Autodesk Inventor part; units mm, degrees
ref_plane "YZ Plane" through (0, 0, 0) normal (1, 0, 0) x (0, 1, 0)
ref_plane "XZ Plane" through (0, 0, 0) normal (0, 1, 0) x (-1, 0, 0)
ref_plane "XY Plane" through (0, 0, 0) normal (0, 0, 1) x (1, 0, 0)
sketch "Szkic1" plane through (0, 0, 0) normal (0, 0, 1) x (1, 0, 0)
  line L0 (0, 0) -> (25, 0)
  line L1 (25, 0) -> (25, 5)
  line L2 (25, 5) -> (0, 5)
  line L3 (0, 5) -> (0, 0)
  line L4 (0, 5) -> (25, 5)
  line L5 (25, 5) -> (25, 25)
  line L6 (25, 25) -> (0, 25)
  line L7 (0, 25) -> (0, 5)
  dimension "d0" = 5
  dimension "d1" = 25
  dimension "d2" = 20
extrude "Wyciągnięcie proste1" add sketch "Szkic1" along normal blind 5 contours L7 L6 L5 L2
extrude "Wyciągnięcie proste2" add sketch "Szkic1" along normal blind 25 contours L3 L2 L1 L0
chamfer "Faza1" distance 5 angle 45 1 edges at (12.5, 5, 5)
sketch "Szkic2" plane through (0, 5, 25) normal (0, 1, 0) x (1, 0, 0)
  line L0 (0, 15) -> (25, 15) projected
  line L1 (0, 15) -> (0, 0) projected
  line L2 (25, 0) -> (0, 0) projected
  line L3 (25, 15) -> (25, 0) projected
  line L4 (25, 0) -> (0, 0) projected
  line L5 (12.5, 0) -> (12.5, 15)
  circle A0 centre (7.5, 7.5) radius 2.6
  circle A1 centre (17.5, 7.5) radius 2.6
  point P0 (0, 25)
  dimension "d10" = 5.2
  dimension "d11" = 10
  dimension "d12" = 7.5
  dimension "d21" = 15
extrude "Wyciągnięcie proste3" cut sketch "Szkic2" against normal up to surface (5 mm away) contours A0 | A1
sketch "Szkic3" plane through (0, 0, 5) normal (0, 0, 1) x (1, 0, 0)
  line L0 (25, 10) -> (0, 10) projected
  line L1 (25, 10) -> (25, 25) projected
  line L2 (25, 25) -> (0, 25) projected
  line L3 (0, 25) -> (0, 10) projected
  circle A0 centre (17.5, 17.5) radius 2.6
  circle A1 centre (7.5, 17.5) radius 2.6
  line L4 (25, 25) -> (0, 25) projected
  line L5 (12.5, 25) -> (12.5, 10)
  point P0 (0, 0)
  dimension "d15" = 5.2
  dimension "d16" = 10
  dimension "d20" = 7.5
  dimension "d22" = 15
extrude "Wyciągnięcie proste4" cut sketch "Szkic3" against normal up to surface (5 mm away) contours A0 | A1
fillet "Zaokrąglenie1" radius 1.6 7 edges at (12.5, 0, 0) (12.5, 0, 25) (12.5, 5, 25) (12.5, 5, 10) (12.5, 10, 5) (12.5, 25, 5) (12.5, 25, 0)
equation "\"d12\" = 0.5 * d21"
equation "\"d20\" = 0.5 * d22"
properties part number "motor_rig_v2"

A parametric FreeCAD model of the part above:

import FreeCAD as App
import Part
import Sketcher
from FreeCAD import Vector


def edges_at(feature, points):
    """Names of the edges that pass closest to the given points."""
    edges = feature.Shape.Edges
    near = lambda p: min(range(len(edges)), key=lambda i: edges[i].distToShape(Part.Vertex(*p))[0])
    return sorted({f"Edge{near(p) + 1}" for p in points})


def add_polygon(sketch, points):
    """Adds a closed chain of lines whose ends are joined by coincident constraints."""
    first, n = sketch.GeometryCount, len(points)
    for a, b in zip(points, points[1:] + points[:1]):
        sketch.addGeometry(Part.LineSegment(App.Vector(*a, 0), App.Vector(*b, 0)), False)
    for i in range(n):
        sketch.addConstraint(Sketcher.Constraint("Coincident", first + i, 2, first + (i + 1) % n, 1))

doc = App.newDocument("Part")
body = doc.addObject("PartDesign::Body", "Body")

# Sketch on XY plane
sketch1 = doc.addObject("Sketcher::SketchObject", "Sketch")
body.addObject(sketch1)
sketch1.AttachmentSupport = (doc.XY_Plane, [""])
sketch1.MapMode = "FlatFace"
add_polygon(sketch1, [(0, 25), (0, 5), (25, 5), (25, 25)])  # lines 0-3
sketch1.addConstraint([
    Sketcher.Constraint("Vertical", 0),
    Sketcher.Constraint("Horizontal", 1),
    Sketcher.Constraint("Vertical", 2),
    Sketcher.Constraint("Horizontal", 3),
    Sketcher.Constraint("PointOnObject", 0, 2, -2),
    Sketcher.Constraint("DistanceX", 1, 1, 1, 2, 25.0),
    Sketcher.Constraint("DistanceY", 0, 2, 0, 1, 20.0),
    Sketcher.Constraint("DistanceY", -1, 1, 0, 2, 5.0),
])
pad1 = doc.addObject("PartDesign::Pad", "Pad")
body.addObject(pad1)
pad1.Profile = sketch1
pad1.Length = 5

# Sketch on XY plane
sketch2 = doc.addObject("Sketcher::SketchObject", "Sketch001")
body.addObject(sketch2)
sketch2.AttachmentSupport = (doc.XY_Plane, [""])
sketch2.MapMode = "FlatFace"
add_polygon(sketch2, [(0, 5), (0, 0), (25, 0), (25, 5)])  # lines 0-3
sketch2.addConstraint([
    Sketcher.Constraint("Vertical", 0),
    Sketcher.Constraint("Horizontal", 1),
    Sketcher.Constraint("Vertical", 2),
    Sketcher.Constraint("Horizontal", 3),
    Sketcher.Constraint("Coincident", 0, 2, -1, 1),
    Sketcher.Constraint("DistanceX", 1, 1, 1, 2, 25.0),
    Sketcher.Constraint("DistanceY", 0, 2, 0, 1, 5.0),
])
pad2 = doc.addObject("PartDesign::Pad", "Pad001")
body.addObject(pad2)
pad2.Profile = sketch2
pad2.Length = 25
doc.recompute()

chamfer = doc.addObject("PartDesign::Chamfer", "Chamfer")
body.addObject(chamfer)
chamfer.Base = (pad2, edges_at(pad2, [(12.5, 5, 5)]))
chamfer.Size = 5

# Sketch on XZ plane
sketch3 = doc.addObject("Sketcher::SketchObject", "Sketch002")
body.addObject(sketch3)
sketch3.AttachmentSupport = (doc.XZ_Plane, [""])
sketch3.MapMode = "FlatFace"
sketch3.AttachmentOffset = App.Placement(Vector(0, 0, -5), App.Rotation())
sketch3.addGeometry([
    Part.Circle(Vector(7.5, 17.5, 0), Vector(0, 0, 1), 2.6),
    Part.Circle(Vector(17.5, 17.5, 0), Vector(0, 0, 1), 2.6),
], False)
sketch3.addConstraint([
    Sketcher.Constraint("Equal", 0, 1),
    Sketcher.Constraint("Horizontal", 0, 3, 1, 3),
    Sketcher.Constraint("Diameter", 0, 5.2),
    Sketcher.Constraint("DistanceX", 0, 3, 1, 3, 10.0),
    Sketcher.Constraint("DistanceX", -1, 1, 0, 3, 7.5),
    Sketcher.Constraint("DistanceY", -1, 1, 0, 3, 17.5),
])
pocket1 = doc.addObject("PartDesign::Pocket", "Pocket")
body.addObject(pocket1)
pocket1.Profile = sketch3
pocket1.Length = 5
pocket1.Reversed = True

# Sketch on XY plane
sketch4 = doc.addObject("Sketcher::SketchObject", "Sketch003")
body.addObject(sketch4)
sketch4.AttachmentSupport = (doc.XY_Plane, [""])
sketch4.MapMode = "FlatFace"
sketch4.AttachmentOffset = App.Placement(Vector(0, 0, 5), App.Rotation())
sketch4.addGeometry([
    Part.Circle(Vector(17.5, 17.5, 0), Vector(0, 0, 1), 2.6),
    Part.Circle(Vector(7.5, 17.5, 0), Vector(0, 0, 1), 2.6),
], False)
sketch4.addConstraint([
    Sketcher.Constraint("Equal", 0, 1),
    Sketcher.Constraint("Horizontal", 0, 3, 1, 3),
    Sketcher.Constraint("Diameter", 0, 5.2),
    Sketcher.Constraint("DistanceX", 1, 3, 0, 3, 10.0),
    Sketcher.Constraint("DistanceX", -1, 1, 1, 3, 7.5),
    Sketcher.Constraint("DistanceY", -1, 1, 0, 3, 17.5),
])
pocket2 = doc.addObject("PartDesign::Pocket", "Pocket001")
body.addObject(pocket2)
pocket2.Profile = sketch4
pocket2.Length = 5
doc.recompute()

fillet = doc.addObject("PartDesign::Fillet", "Fillet")
body.addObject(fillet)
fillet.Base = (pocket2, edges_at(pocket2, [
    (12.5, 0, 0),
    (12.5, 0, 25),
    (12.5, 5, 25),
    (12.5, 5, 10),
    (12.5, 10, 5),
    (12.5, 25, 5),
    (12.5, 25, 0),
]))
fillet.Radius = 1.6

doc.recompute()
